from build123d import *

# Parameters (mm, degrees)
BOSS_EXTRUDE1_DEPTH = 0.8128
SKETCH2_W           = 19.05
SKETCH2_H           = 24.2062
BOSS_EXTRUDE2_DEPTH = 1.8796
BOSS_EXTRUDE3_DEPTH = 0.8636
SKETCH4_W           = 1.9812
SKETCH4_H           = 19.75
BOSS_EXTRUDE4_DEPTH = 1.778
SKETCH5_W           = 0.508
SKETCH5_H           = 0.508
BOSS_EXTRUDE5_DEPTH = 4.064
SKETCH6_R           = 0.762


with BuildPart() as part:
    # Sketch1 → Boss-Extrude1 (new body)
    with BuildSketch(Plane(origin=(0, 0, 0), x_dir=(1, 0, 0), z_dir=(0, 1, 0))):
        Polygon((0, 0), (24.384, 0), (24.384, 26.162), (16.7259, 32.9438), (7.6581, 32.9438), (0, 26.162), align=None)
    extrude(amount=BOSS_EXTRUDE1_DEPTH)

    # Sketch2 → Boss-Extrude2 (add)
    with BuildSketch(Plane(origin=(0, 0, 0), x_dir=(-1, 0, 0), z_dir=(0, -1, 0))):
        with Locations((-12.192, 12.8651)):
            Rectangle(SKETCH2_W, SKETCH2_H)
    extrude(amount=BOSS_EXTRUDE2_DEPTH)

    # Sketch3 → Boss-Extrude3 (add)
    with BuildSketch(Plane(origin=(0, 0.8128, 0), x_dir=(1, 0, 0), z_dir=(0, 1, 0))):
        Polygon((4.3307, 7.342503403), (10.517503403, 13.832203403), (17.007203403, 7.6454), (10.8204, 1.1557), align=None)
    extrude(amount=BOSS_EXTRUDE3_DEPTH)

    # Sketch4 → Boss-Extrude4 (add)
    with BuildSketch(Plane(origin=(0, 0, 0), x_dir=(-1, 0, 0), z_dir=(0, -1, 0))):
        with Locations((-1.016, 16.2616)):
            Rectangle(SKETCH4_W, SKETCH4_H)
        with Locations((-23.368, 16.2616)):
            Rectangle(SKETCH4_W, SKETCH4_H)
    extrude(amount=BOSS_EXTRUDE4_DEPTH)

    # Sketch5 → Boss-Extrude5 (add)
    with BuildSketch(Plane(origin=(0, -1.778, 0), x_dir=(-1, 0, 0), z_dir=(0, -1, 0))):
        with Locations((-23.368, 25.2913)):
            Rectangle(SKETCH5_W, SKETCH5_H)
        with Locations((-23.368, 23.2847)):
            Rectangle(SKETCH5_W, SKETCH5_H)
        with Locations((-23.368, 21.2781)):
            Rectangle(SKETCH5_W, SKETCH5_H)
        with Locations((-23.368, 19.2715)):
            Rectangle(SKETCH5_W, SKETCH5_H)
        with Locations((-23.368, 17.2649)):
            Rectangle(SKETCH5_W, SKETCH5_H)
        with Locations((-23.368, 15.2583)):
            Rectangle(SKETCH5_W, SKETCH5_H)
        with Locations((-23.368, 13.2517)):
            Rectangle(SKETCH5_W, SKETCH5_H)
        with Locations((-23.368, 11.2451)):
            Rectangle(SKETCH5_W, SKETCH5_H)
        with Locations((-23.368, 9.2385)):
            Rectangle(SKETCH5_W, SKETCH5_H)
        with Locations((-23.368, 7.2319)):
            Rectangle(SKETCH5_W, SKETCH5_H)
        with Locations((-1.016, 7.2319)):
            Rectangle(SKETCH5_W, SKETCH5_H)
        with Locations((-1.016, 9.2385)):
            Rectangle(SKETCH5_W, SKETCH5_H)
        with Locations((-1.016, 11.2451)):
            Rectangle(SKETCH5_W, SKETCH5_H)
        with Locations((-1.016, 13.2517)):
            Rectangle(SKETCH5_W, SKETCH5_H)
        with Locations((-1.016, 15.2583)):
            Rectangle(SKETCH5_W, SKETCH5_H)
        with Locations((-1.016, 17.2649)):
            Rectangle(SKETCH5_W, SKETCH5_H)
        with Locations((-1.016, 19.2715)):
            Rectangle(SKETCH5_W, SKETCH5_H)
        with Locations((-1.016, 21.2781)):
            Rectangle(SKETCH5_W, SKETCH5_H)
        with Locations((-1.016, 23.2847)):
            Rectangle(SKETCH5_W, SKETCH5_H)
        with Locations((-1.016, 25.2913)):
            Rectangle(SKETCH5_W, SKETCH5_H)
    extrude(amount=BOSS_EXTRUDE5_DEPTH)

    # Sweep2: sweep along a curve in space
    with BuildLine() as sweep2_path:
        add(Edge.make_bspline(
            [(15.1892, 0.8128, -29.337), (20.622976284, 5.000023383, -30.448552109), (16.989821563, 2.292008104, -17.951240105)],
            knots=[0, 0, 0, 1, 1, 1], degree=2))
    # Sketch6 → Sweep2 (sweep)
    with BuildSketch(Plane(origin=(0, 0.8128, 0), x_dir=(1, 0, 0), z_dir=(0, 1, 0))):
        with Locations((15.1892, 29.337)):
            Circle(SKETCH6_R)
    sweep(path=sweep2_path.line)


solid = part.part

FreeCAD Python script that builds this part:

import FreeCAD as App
import Part
import Sketcher
from FreeCAD import Vector
Q = App.Units.Quantity


def add_polygon(sketch, points):
    """Adds a closed chain of lines whose ends are joined by coincident constraints."""
    first, n = sketch.GeometryCount, len(points)
    for a, b in zip(points, points[1:] + points[:1]):
        sketch.addGeometry(Part.LineSegment(App.Vector(*a, 0), App.Vector(*b, 0)), False)
    for i in range(n):
        sketch.addConstraint(Sketcher.Constraint("Coincident", first + i, 2, first + (i + 1) % n, 1))

doc = App.newDocument("Part")
body = doc.addObject("PartDesign::Body", "Body")

sketch1 = body.newObject("Sketcher::SketchObject", "Sketch")
sketch1.AttachmentSupport = (doc.getObject("XZ_Plane"), [""])
sketch1.MapMode = "FlatFace"
add_polygon(sketch1, [(0, 0), (24, 0), (24, -26), (17, -33), (8, -33), (0, -26)])
sketch1.addConstraint(Sketcher.Constraint("Horizontal", 0))
sketch1.addConstraint(Sketcher.Constraint("Vertical", 1))
sketch1.addConstraint(Sketcher.Constraint("Horizontal", 3))
sketch1.addConstraint(Sketcher.Constraint("Vertical", 5))
sketch1.addConstraint(Sketcher.Constraint("Coincident", 5, 2, -1, 1))
sketch1.addConstraint(Sketcher.Constraint("Horizontal", 1, 2, 4, 2))
sketch1.addConstraint(Sketcher.Constraint("Equal", 2, 4))
sketch1.addConstraint(Sketcher.Constraint("DistanceX", 0, 1, 0, 2, Q("0.96 in")))
sketch1.addConstraint(Sketcher.Constraint("DistanceY", 1, 2, 1, 1, Q("1.03 in")))
sketch1.addConstraint(Sketcher.Constraint("DistanceX", 3, 2, 3, 1, Q("0.357 in")))
sketch1.addConstraint(Sketcher.Constraint("DistanceY", 2, 2, -1, 1, Q("1.297 in")))
pad1 = body.newObject("PartDesign::Pad", "Pad")
pad1.Profile = sketch1
pad1.Length = Q("0.032 in")
pad1.Reversed = True

sketch2 = body.newObject("Sketcher::SketchObject", "Sketch001")
sketch2.AttachmentSupport = (doc.getObject("XZ_Plane"), [""])
sketch2.MapMode = "FlatFace"
add_polygon(sketch2, [(22, -25), (22, -1), (3, -1), (3, -25)])
sketch2.addConstraint(Sketcher.Constraint("Vertical", 0))
sketch2.addConstraint(Sketcher.Constraint("Horizontal", 1))
sketch2.addConstraint(Sketcher.Constraint("Vertical", 2))
sketch2.addConstraint(Sketcher.Constraint("Horizontal", 3))
sketch2.addConstraint(Sketcher.Constraint("DistanceX", 1, 2, 1, 1, Q("0.75 in")))
sketch2.addConstraint(Sketcher.Constraint("DistanceY", 0, 1, 0, 2, Q("0.953 in")))
sketch2.addConstraint(Sketcher.Constraint("DistanceY", 0, 2, -1, 1, Q("0.03 in")))
sketch2.addConstraint(Sketcher.Constraint("DistanceX", -1, 1, 0, 2, Q("0.855 in")))
pad2 = body.newObject("PartDesign::Pad", "Pad001")
pad2.Profile = sketch2
pad2.Length = Q("0.074 in")

sketch3 = body.newObject("Sketcher::SketchObject", "Sketch002")
sketch3.AttachmentSupport = (doc.getObject("XZ_Plane"), [""])
sketch3.MapMode = "FlatFace"
sketch3.AttachmentOffset = App.Placement(Vector(0, 0, -0.032 * 25.4), App.Rotation())
add_polygon(sketch3, [(11, -14), (4, -7), (11, -1), (17, -8)])
sketch3.addConstraint(Sketcher.Constraint("Perpendicular", 0, 1))
sketch3.addConstraint(Sketcher.Constraint("Perpendicular", 1, 2))
sketch3.addConstraint(Sketcher.Constraint("Perpendicular", 2, 3))
sketch3.addConstraint(Sketcher.Constraint("Equal", 0, 1))
sketch3.addConstraint(Sketcher.Constraint("Distance", 0, Q("0.353 in")))
sketch3.addConstraint(Sketcher.Constraint("DistanceX", -1, 1, 1, 2, Q("0.426 in")))
sketch3.addConstraint(Sketcher.Constraint("DistanceY", 2, 2, -1, 1, Q("0.301 in")))
sketch3.addConstraint(Sketcher.Constraint("DistanceX", -1, 1, 0, 2, Q("0.1705 in")))
pad3 = body.newObject("PartDesign::Pad", "Pad002")
pad3.Profile = sketch3
pad3.Length = Q("0.034 in")
pad3.Reversed = True

sketch4 = body.newObject("Sketcher::SketchObject", "Sketch003")
sketch4.AttachmentSupport = (doc.getObject("XZ_Plane"), [""])
sketch4.MapMode = "FlatFace"
add_polygon(sketch4, [(2, -26.1), (2, -6.4), (0, -6.4), (0, -26.1)])
add_polygon(sketch4, [(24.4, -26.1), (24.4, -6.4), (22.4, -6.4), (22.4, -26.1)])
sketch4.addConstraint(Sketcher.Constraint("Vertical", 0))
sketch4.addConstraint(Sketcher.Constraint("Horizontal", 1))
sketch4.addConstraint(Sketcher.Constraint("Vertical", 2))
sketch4.addConstraint(Sketcher.Constraint("Horizontal", 3))
sketch4.addConstraint(Sketcher.Constraint("Vertical", 4))
sketch4.addConstraint(Sketcher.Constraint("Horizontal", 5))
sketch4.addConstraint(Sketcher.Constraint("Vertical", 6))
sketch4.addConstraint(Sketcher.Constraint("Horizontal", 7))
sketch4.addConstraint(Sketcher.Constraint("Horizontal", 1, 2, 4, 2))
sketch4.addConstraint(Sketcher.Constraint("Horizontal", 3, 2, 6, 2))
sketch4.addConstraint(Sketcher.Constraint("Equal", 3, 5))
sketch4.addConstraint(Sketcher.Constraint("DistanceX", 1, 2, 1, 1, Q("0.078 in")))
sketch4.addConstraint(Sketcher.Constraint("DistanceX", 0, 2, 4, 2, Q("0.88 in")))
sketch4.addConstraint(Sketcher.Constraint("DistanceX", -1, 1, 0, 2, Q("0.079 in")))
sketch4.addConstraint(Sketcher.Constraint("DistanceY", 2, 2, -1, 1, Q("1.029 in")))
sketch4.addConstraint(Sketcher.Constraint("DistanceY", 0, 1, 0, 2, Q("19.75 mm")))
pad4 = body.newObject("PartDesign::Pad", "Pad003")
pad4.Profile = sketch4
pad4.Length = Q("0.07 in")

sketch5 = body.newObject("Sketcher::SketchObject", "Sketch004")
sketch5.AttachmentSupport = (doc.getObject("XZ_Plane"), [""])
sketch5.MapMode = "FlatFace"
sketch5.AttachmentOffset = App.Placement(Vector(0, 0, 0.07 * 25.4), App.Rotation())
add_polygon(sketch5, [(23.6, -25.5), (23.6, -25), (23.1, -25), (23.1, -25.5)])
add_polygon(sketch5, [(23.6, -23.5), (23.6, -23), (23.1, -23), (23.1, -23.5)])
add_polygon(sketch5, [(23.6, -21.5), (23.6, -21), (23.1, -21), (23.1, -21.5)])
add_polygon(sketch5, [(23.6, -19.5), (23.6, -19), (23.1, -19), (23.1, -19.5)])
add_polygon(sketch5, [(23.6, -17.5), (23.6, -17), (23.1, -17), (23.1, -17.5)])
add_polygon(sketch5, [(23.6, -15.5), (23.6, -15), (23.1, -15), (23.1, -15.5)])
add_polygon(sketch5, [(23.6, -13.5), (23.6, -13), (23.1, -13), (23.1, -13.5)])
add_polygon(sketch5, [(23.6, -11.5), (23.6, -11), (23.1, -11), (23.1, -11.5)])
add_polygon(sketch5, [(23.6, -9.5), (23.6, -9), (23.1, -9), (23.1, -9.5)])
add_polygon(sketch5, [(23.6, -7.5), (23.6, -7), (23.1, -7), (23.1, -7.5)])
add_polygon(sketch5, [(1.3, -7.5), (1.3, -7), (0.8, -7), (0.8, -7.5)])
add_polygon(sketch5, [(1.3, -9.5), (1.3, -9), (0.8, -9), (0.8, -9.5)])
add_polygon(sketch5, [(1.3, -11.5), (1.3, -11), (0.8, -11), (0.8, -11.5)])
add_polygon(sketch5, [(1.3, -13.5), (1.3, -13), (0.8, -13), (0.8, -13.5)])
add_polygon(sketch5, [(1.3, -15.5), (1.3, -15), (0.8, -15), (0.8, -15.5)])
add_polygon(sketch5, [(1.3, -17.5), (1.3, -17), (0.8, -17), (0.8, -17.5)])
add_polygon(sketch5, [(1.3, -19.5), (1.3, -19), (0.8, -19), (0.8, -19.5)])
add_polygon(sketch5, [(1.3, -21.5), (1.3, -21), (0.8, -21), (0.8, -21.5)])
add_polygon(sketch5, [(1.3, -23.5), (1.3, -23), (0.8, -23), (0.8, -23.5)])
add_polygon(sketch5, [(1.3, -25.5), (1.3, -25), (0.8, -25), (0.8, -25.5)])
sketch5.addConstraint(Sketcher.Constraint("Vertical", 0))
sketch5.addConstraint(Sketcher.Constraint("Horizontal", 1))
sketch5.addConstraint(Sketcher.Constraint("Vertical", 2))
sketch5.addConstraint(Sketcher.Constraint("Horizontal", 3))
sketch5.addConstraint(Sketcher.Constraint("Vertical", 4))
sketch5.addConstraint(Sketcher.Constraint("Horizontal", 5))
sketch5.addConstraint(Sketcher.Constraint("Vertical", 6))
sketch5.addConstraint(Sketcher.Constraint("Horizontal", 7))
sketch5.addConstraint(Sketcher.Constraint("Vertical", 8))
sketch5.addConstraint(Sketcher.Constraint("Horizontal", 9))
sketch5.addConstraint(Sketcher.Constraint("Vertical", 10))
sketch5.addConstraint(Sketcher.Constraint("Horizontal", 11))
sketch5.addConstraint(Sketcher.Constraint("Vertical", 12))
sketch5.addConstraint(Sketcher.Constraint("Horizontal", 13))
sketch5.addConstraint(Sketcher.Constraint("Vertical", 14))
sketch5.addConstraint(Sketcher.Constraint("Horizontal", 15))
sketch5.addConstraint(Sketcher.Constraint("Vertical", 16))
sketch5.addConstraint(Sketcher.Constraint("Horizontal", 17))
sketch5.addConstraint(Sketcher.Constraint("Vertical", 18))
sketch5.addConstraint(Sketcher.Constraint("Horizontal", 19))
sketch5.addConstraint(Sketcher.Constraint("Vertical", 20))
sketch5.addConstraint(Sketcher.Constraint("Horizontal", 21))
sketch5.addConstraint(Sketcher.Constraint("Vertical", 22))
sketch5.addConstraint(Sketcher.Constraint("Horizontal", 23))
sketch5.addConstraint(Sketcher.Constraint("Vertical", 24))
sketch5.addConstraint(Sketcher.Constraint("Horizontal", 25))
sketch5.addConstraint(Sketcher.Constraint("Vertical", 26))
sketch5.addConstraint(Sketcher.Constraint("Horizontal", 27))
sketch5.addConstraint(Sketcher.Constraint("Vertical", 28))
sketch5.addConstraint(Sketcher.Constraint("Horizontal", 29))
sketch5.addConstraint(Sketcher.Constraint("Vertical", 30))
sketch5.addConstraint(Sketcher.Constraint("Horizontal", 31))
sketch5.addConstraint(Sketcher.Constraint("Vertical", 32))
sketch5.addConstraint(Sketcher.Constraint("Horizontal", 33))
sketch5.addConstraint(Sketcher.Constraint("Vertical", 34))
sketch5.addConstraint(Sketcher.Constraint("Horizontal", 35))
sketch5.addConstraint(Sketcher.Constraint("Vertical", 36))
sketch5.addConstraint(Sketcher.Constraint("Horizontal", 37))
sketch5.addConstraint(Sketcher.Constraint("Vertical", 38))
sketch5.addConstraint(Sketcher.Constraint("Horizontal", 39))
sketch5.addConstraint(Sketcher.Constraint("Vertical", 40))
sketch5.addConstraint(Sketcher.Constraint("Horizontal", 41))
sketch5.addConstraint(Sketcher.Constraint("Vertical", 42))
sketch5.addConstraint(Sketcher.Constraint("Horizontal", 43))
sketch5.addConstraint(Sketcher.Constraint("Vertical", 44))
sketch5.addConstraint(Sketcher.Constraint("Horizontal", 45))
sketch5.addConstraint(Sketcher.Constraint("Vertical", 46))
sketch5.addConstraint(Sketcher.Constraint("Horizontal", 47))
sketch5.addConstraint(Sketcher.Constraint("Vertical", 48))
sketch5.addConstraint(Sketcher.Constraint("Horizontal", 49))
sketch5.addConstraint(Sketcher.Constraint("Vertical", 50))
sketch5.addConstraint(Sketcher.Constraint("Horizontal", 51))
sketch5.addConstraint(Sketcher.Constraint("Vertical", 52))
sketch5.addConstraint(Sketcher.Constraint("Horizontal", 53))
sketch5.addConstraint(Sketcher.Constraint("Vertical", 54))
sketch5.addConstraint(Sketcher.Constraint("Horizontal", 55))
sketch5.addConstraint(Sketcher.Constraint("Vertical", 56))
sketch5.addConstraint(Sketcher.Constraint("Horizontal", 57))
sketch5.addConstraint(Sketcher.Constraint("Vertical", 58))
sketch5.addConstraint(Sketcher.Constraint("Horizontal", 59))
sketch5.addConstraint(Sketcher.Constraint("Vertical", 60))
sketch5.addConstraint(Sketcher.Constraint("Horizontal", 61))
sketch5.addConstraint(Sketcher.Constraint("Vertical", 62))
sketch5.addConstraint(Sketcher.Constraint("Horizontal", 63))
sketch5.addConstraint(Sketcher.Constraint("Vertical", 64))
sketch5.addConstraint(Sketcher.Constraint("Horizontal", 65))
sketch5.addConstraint(Sketcher.Constraint("Vertical", 66))
sketch5.addConstraint(Sketcher.Constraint("Horizontal", 67))
sketch5.addConstraint(Sketcher.Constraint("Vertical", 68))
sketch5.addConstraint(Sketcher.Constraint("Horizontal", 69))
sketch5.addConstraint(Sketcher.Constraint("Vertical", 70))
sketch5.addConstraint(Sketcher.Constraint("Horizontal", 71))
sketch5.addConstraint(Sketcher.Constraint("Vertical", 72))
sketch5.addConstraint(Sketcher.Constraint("Horizontal", 73))
sketch5.addConstraint(Sketcher.Constraint("Vertical", 74))
sketch5.addConstraint(Sketcher.Constraint("Horizontal", 75))
sketch5.addConstraint(Sketcher.Constraint("Vertical", 76))
sketch5.addConstraint(Sketcher.Constraint("Horizontal", 77))
sketch5.addConstraint(Sketcher.Constraint("Vertical", 78))
sketch5.addConstraint(Sketcher.Constraint("Horizontal", 79))
sketch5.addConstraint(Sketcher.Constraint("Horizontal", 37, 2, 40, 2))
sketch5.addConstraint(Sketcher.Constraint("Horizontal", 39, 2, 42, 2))
sketch5.addConstraint(Sketcher.Constraint("Horizontal", 33, 2, 44, 2))
sketch5.addConstraint(Sketcher.Constraint("Horizontal", 35, 2, 46, 2))
sketch5.addConstraint(Sketcher.Constraint("Horizontal", 29, 2, 48, 2))
sketch5.addConstraint(Sketcher.Constraint("Horizontal", 31, 2, 50, 2))
sketch5.addConstraint(Sketcher.Constraint("Horizontal", 25, 2, 52, 2))
sketch5.addConstraint(Sketcher.Constraint("Horizontal", 27, 2, 54, 2))
sketch5.addConstraint(Sketcher.Constraint("Horizontal", 21, 2, 56, 2))
sketch5.addConstraint(Sketcher.Constraint("Horizontal", 23, 2, 58, 2))
sketch5.addConstraint(Sketcher.Constraint("Horizontal", 17, 2, 60, 2))
sketch5.addConstraint(Sketcher.Constraint("Horizontal", 19, 2, 62, 2))
sketch5.addConstraint(Sketcher.Constraint("Horizontal", 13, 2, 64, 2))
sketch5.addConstraint(Sketcher.Constraint("Horizontal", 15, 2, 66, 2))
sketch5.addConstraint(Sketcher.Constraint("Horizontal", 9, 2, 68, 2))
sketch5.addConstraint(Sketcher.Constraint("Horizontal", 11, 2, 70, 2))
sketch5.addConstraint(Sketcher.Constraint("Horizontal", 5, 2, 72, 2))
sketch5.addConstraint(Sketcher.Constraint("Horizontal", 7, 2, 74, 2))
sketch5.addConstraint(Sketcher.Constraint("Horizontal", 1, 2, 76, 2))
sketch5.addConstraint(Sketcher.Constraint("Horizontal", 3, 2, 78, 2))
sketch5.addConstraint(Sketcher.Constraint("Vertical", 3, 2, 4, 2))
sketch5.addConstraint(Sketcher.Constraint("Vertical", 2, 2, 5, 2))
sketch5.addConstraint(Sketcher.Constraint("Vertical", 7, 2, 8, 2))
sketch5.addConstraint(Sketcher.Constraint("Vertical", 6, 2, 9, 2))
sketch5.addConstraint(Sketcher.Constraint("Vertical", 11, 2, 12, 2))
sketch5.addConstraint(Sketcher.Constraint("Vertical", 10, 2, 13, 2))
sketch5.addConstraint(Sketcher.Constraint("Vertical", 15, 2, 16, 2))
sketch5.addConstraint(Sketcher.Constraint("Vertical", 14, 2, 17, 2))
sketch5.addConstraint(Sketcher.Constraint("Vertical", 19, 2, 20, 2))
sketch5.addConstraint(Sketcher.Constraint("Vertical", 18, 2, 21, 2))
sketch5.addConstraint(Sketcher.Constraint("Vertical", 23, 2, 24, 2))
sketch5.addConstraint(Sketcher.Constraint("Vertical", 22, 2, 25, 2))
sketch5.addConstraint(Sketcher.Constraint("Vertical", 27, 2, 28, 2))
sketch5.addConstraint(Sketcher.Constraint("Vertical", 26, 2, 29, 2))
sketch5.addConstraint(Sketcher.Constraint("Vertical", 31, 2, 32, 2))
sketch5.addConstraint(Sketcher.Constraint("Vertical", 30, 2, 33, 2))
sketch5.addConstraint(Sketcher.Constraint("Vertical", 35, 2, 36, 2))
sketch5.addConstraint(Sketcher.Constraint("Vertical", 34, 2, 37, 2))
sketch5.addConstraint(Sketcher.Constraint("Vertical", 43, 2, 44, 2))
sketch5.addConstraint(Sketcher.Constraint("Vertical", 42, 2, 45, 2))
sketch5.addConstraint(Sketcher.Constraint("Vertical", 47, 2, 48, 2))
sketch5.addConstraint(Sketcher.Constraint("Vertical", 46, 2, 49, 2))
sketch5.addConstraint(Sketcher.Constraint("Vertical", 51, 2, 52, 2))
sketch5.addConstraint(Sketcher.Constraint("Vertical", 50, 2, 53, 2))
sketch5.addConstraint(Sketcher.Constraint("Vertical", 55, 2, 56, 2))
sketch5.addConstraint(Sketcher.Constraint("Vertical", 54, 2, 57, 2))
sketch5.addConstraint(Sketcher.Constraint("Vertical", 59, 2, 60, 2))
sketch5.addConstraint(Sketcher.Constraint("Vertical", 58, 2, 61, 2))
sketch5.addConstraint(Sketcher.Constraint("Vertical", 63, 2, 64, 2))
sketch5.addConstraint(Sketcher.Constraint("Vertical", 62, 2, 65, 2))
sketch5.addConstraint(Sketcher.Constraint("Vertical", 67, 2, 68, 2))
sketch5.addConstraint(Sketcher.Constraint("Vertical", 66, 2, 69, 2))
sketch5.addConstraint(Sketcher.Constraint("Vertical", 71, 2, 72, 2))
sketch5.addConstraint(Sketcher.Constraint("Vertical", 70, 2, 73, 2))
sketch5.addConstraint(Sketcher.Constraint("Vertical", 75, 2, 76, 2))
sketch5.addConstraint(Sketcher.Constraint("Vertical", 74, 2, 77, 2))
sketch5.addConstraint(Sketcher.Constraint("Equal", 39, 41))
sketch5.addConstraint(Sketcher.Constraint("Equal", 79, 0))
sketch5.addConstraint(Sketcher.Constraint("Equal", 2, 4))
sketch5.addConstraint(Sketcher.Constraint("Equal", 6, 8))
sketch5.addConstraint(Sketcher.Constraint("Equal", 10, 12))
sketch5.addConstraint(Sketcher.Constraint("Equal", 14, 16))
sketch5.addConstraint(Sketcher.Constraint("Equal", 18, 20))
sketch5.addConstraint(Sketcher.Constraint("Equal", 22, 24))
sketch5.addConstraint(Sketcher.Constraint("Equal", 26, 28))
sketch5.addConstraint(Sketcher.Constraint("Equal", 30, 32))
sketch5.addConstraint(Sketcher.Constraint("Equal", 34, 36))
sketch5.addConstraint(Sketcher.Constraint("DistanceX", 1, 2, 1, 1, Q("0.02 in")))
sketch5.addConstraint(Sketcher.Constraint("DistanceX", -1, 1, 0, 2, Q("0.93 in")))
sketch5.addConstraint(Sketcher.Constraint("DistanceX", -1, 1, 40, 2, Q("0.05 in")))
sketch5.addConstraint(Sketcher.Constraint("DistanceY", 0, 2, -1, 1, Q("25.0373 mm")))
sketch5.addConstraint(Sketcher.Constraint("DistanceY", 4, 2, -1, 1, Q("23.0307 mm")))
sketch5.addConstraint(Sketcher.Constraint("DistanceY", 8, 2, -1, 1, Q("21.0241 mm")))
sketch5.addConstraint(Sketcher.Constraint("DistanceY", 12, 2, -1, 1, Q("19.0175 mm")))
sketch5.addConstraint(Sketcher.Constraint("DistanceY", 16, 2, -1, 1, Q("17.0109 mm")))
sketch5.addConstraint(Sketcher.Constraint("DistanceY", 20, 2, -1, 1, Q("15.0043 mm")))
sketch5.addConstraint(Sketcher.Constraint("DistanceY", 24, 2, -1, 1, Q("12.9977 mm")))
sketch5.addConstraint(Sketcher.Constraint("DistanceY", 28, 2, -1, 1, Q("10.9911 mm")))
sketch5.addConstraint(Sketcher.Constraint("DistanceY", 32, 2, -1, 1, Q("8.9845 mm")))
sketch5.addConstraint(Sketcher.Constraint("DistanceY", 36, 2, -1, 1, Q("6.9779 mm")))
pad5 = body.newObject("PartDesign::Pad", "Pad004")
pad5.Profile = sketch5
pad5.Length = Q("0.16 in")

sketch6 = body.newObject("Sketcher::SketchObject", "Sketch005")
sketch6.AttachmentSupport = (doc.getObject("XZ_Plane"), [""])
sketch6.MapMode = "FlatFace"
sketch6.AttachmentOffset = App.Placement(Vector(0, 0, -0.032 * 25.4), App.Rotation())
sketch6.addGeometry(Part.Circle(Vector(15.2, -29.3, 0), Vector(0, 0, 1), 0.8), False)
sketch6.addConstraint(Sketcher.Constraint("Diameter", 0, Q("0.06 in")))
sketch6.addConstraint(Sketcher.Constraint("DistanceX", -1, 1, 0, 3, Q("0.598 in")))
sketch6.addConstraint(Sketcher.Constraint("DistanceY", 0, 3, -1, 1, Q("1.155 in")))

sketch7 = body.newObject("Sketcher::SketchObject", "Sketch006")
sketch7.Placement = App.Placement(Vector(5.169728, -6.694916, 0.05221), App.Rotation(Vector(-0.791491826, -0.611179753, 0), Vector(-0.003772385, 0.004885326, 0.999980952), Vector(-0.61116811, 0.791476749, -0.006172301), "ZXY"))
sketch7.addGeometry(Part.BSplineCurve([Vector(-12.518895, -29.38977, 0), Vector(-19.37883, -30.501343, 0), Vector(-14.848134, -18.003793, 0)], [3, 3], [0, 1], False, 2, [1, 1, 1], False), False)
sketch7.addConstraint(Sketcher.Constraint("Block", 0))
doc.recompute()

additivepipe = body.newObject("PartDesign::AdditivePipe", "AdditivePipe")
additivepipe.Profile = sketch6
additivepipe.Spine = (sketch7, ["Edge1"])

doc.recompute()
